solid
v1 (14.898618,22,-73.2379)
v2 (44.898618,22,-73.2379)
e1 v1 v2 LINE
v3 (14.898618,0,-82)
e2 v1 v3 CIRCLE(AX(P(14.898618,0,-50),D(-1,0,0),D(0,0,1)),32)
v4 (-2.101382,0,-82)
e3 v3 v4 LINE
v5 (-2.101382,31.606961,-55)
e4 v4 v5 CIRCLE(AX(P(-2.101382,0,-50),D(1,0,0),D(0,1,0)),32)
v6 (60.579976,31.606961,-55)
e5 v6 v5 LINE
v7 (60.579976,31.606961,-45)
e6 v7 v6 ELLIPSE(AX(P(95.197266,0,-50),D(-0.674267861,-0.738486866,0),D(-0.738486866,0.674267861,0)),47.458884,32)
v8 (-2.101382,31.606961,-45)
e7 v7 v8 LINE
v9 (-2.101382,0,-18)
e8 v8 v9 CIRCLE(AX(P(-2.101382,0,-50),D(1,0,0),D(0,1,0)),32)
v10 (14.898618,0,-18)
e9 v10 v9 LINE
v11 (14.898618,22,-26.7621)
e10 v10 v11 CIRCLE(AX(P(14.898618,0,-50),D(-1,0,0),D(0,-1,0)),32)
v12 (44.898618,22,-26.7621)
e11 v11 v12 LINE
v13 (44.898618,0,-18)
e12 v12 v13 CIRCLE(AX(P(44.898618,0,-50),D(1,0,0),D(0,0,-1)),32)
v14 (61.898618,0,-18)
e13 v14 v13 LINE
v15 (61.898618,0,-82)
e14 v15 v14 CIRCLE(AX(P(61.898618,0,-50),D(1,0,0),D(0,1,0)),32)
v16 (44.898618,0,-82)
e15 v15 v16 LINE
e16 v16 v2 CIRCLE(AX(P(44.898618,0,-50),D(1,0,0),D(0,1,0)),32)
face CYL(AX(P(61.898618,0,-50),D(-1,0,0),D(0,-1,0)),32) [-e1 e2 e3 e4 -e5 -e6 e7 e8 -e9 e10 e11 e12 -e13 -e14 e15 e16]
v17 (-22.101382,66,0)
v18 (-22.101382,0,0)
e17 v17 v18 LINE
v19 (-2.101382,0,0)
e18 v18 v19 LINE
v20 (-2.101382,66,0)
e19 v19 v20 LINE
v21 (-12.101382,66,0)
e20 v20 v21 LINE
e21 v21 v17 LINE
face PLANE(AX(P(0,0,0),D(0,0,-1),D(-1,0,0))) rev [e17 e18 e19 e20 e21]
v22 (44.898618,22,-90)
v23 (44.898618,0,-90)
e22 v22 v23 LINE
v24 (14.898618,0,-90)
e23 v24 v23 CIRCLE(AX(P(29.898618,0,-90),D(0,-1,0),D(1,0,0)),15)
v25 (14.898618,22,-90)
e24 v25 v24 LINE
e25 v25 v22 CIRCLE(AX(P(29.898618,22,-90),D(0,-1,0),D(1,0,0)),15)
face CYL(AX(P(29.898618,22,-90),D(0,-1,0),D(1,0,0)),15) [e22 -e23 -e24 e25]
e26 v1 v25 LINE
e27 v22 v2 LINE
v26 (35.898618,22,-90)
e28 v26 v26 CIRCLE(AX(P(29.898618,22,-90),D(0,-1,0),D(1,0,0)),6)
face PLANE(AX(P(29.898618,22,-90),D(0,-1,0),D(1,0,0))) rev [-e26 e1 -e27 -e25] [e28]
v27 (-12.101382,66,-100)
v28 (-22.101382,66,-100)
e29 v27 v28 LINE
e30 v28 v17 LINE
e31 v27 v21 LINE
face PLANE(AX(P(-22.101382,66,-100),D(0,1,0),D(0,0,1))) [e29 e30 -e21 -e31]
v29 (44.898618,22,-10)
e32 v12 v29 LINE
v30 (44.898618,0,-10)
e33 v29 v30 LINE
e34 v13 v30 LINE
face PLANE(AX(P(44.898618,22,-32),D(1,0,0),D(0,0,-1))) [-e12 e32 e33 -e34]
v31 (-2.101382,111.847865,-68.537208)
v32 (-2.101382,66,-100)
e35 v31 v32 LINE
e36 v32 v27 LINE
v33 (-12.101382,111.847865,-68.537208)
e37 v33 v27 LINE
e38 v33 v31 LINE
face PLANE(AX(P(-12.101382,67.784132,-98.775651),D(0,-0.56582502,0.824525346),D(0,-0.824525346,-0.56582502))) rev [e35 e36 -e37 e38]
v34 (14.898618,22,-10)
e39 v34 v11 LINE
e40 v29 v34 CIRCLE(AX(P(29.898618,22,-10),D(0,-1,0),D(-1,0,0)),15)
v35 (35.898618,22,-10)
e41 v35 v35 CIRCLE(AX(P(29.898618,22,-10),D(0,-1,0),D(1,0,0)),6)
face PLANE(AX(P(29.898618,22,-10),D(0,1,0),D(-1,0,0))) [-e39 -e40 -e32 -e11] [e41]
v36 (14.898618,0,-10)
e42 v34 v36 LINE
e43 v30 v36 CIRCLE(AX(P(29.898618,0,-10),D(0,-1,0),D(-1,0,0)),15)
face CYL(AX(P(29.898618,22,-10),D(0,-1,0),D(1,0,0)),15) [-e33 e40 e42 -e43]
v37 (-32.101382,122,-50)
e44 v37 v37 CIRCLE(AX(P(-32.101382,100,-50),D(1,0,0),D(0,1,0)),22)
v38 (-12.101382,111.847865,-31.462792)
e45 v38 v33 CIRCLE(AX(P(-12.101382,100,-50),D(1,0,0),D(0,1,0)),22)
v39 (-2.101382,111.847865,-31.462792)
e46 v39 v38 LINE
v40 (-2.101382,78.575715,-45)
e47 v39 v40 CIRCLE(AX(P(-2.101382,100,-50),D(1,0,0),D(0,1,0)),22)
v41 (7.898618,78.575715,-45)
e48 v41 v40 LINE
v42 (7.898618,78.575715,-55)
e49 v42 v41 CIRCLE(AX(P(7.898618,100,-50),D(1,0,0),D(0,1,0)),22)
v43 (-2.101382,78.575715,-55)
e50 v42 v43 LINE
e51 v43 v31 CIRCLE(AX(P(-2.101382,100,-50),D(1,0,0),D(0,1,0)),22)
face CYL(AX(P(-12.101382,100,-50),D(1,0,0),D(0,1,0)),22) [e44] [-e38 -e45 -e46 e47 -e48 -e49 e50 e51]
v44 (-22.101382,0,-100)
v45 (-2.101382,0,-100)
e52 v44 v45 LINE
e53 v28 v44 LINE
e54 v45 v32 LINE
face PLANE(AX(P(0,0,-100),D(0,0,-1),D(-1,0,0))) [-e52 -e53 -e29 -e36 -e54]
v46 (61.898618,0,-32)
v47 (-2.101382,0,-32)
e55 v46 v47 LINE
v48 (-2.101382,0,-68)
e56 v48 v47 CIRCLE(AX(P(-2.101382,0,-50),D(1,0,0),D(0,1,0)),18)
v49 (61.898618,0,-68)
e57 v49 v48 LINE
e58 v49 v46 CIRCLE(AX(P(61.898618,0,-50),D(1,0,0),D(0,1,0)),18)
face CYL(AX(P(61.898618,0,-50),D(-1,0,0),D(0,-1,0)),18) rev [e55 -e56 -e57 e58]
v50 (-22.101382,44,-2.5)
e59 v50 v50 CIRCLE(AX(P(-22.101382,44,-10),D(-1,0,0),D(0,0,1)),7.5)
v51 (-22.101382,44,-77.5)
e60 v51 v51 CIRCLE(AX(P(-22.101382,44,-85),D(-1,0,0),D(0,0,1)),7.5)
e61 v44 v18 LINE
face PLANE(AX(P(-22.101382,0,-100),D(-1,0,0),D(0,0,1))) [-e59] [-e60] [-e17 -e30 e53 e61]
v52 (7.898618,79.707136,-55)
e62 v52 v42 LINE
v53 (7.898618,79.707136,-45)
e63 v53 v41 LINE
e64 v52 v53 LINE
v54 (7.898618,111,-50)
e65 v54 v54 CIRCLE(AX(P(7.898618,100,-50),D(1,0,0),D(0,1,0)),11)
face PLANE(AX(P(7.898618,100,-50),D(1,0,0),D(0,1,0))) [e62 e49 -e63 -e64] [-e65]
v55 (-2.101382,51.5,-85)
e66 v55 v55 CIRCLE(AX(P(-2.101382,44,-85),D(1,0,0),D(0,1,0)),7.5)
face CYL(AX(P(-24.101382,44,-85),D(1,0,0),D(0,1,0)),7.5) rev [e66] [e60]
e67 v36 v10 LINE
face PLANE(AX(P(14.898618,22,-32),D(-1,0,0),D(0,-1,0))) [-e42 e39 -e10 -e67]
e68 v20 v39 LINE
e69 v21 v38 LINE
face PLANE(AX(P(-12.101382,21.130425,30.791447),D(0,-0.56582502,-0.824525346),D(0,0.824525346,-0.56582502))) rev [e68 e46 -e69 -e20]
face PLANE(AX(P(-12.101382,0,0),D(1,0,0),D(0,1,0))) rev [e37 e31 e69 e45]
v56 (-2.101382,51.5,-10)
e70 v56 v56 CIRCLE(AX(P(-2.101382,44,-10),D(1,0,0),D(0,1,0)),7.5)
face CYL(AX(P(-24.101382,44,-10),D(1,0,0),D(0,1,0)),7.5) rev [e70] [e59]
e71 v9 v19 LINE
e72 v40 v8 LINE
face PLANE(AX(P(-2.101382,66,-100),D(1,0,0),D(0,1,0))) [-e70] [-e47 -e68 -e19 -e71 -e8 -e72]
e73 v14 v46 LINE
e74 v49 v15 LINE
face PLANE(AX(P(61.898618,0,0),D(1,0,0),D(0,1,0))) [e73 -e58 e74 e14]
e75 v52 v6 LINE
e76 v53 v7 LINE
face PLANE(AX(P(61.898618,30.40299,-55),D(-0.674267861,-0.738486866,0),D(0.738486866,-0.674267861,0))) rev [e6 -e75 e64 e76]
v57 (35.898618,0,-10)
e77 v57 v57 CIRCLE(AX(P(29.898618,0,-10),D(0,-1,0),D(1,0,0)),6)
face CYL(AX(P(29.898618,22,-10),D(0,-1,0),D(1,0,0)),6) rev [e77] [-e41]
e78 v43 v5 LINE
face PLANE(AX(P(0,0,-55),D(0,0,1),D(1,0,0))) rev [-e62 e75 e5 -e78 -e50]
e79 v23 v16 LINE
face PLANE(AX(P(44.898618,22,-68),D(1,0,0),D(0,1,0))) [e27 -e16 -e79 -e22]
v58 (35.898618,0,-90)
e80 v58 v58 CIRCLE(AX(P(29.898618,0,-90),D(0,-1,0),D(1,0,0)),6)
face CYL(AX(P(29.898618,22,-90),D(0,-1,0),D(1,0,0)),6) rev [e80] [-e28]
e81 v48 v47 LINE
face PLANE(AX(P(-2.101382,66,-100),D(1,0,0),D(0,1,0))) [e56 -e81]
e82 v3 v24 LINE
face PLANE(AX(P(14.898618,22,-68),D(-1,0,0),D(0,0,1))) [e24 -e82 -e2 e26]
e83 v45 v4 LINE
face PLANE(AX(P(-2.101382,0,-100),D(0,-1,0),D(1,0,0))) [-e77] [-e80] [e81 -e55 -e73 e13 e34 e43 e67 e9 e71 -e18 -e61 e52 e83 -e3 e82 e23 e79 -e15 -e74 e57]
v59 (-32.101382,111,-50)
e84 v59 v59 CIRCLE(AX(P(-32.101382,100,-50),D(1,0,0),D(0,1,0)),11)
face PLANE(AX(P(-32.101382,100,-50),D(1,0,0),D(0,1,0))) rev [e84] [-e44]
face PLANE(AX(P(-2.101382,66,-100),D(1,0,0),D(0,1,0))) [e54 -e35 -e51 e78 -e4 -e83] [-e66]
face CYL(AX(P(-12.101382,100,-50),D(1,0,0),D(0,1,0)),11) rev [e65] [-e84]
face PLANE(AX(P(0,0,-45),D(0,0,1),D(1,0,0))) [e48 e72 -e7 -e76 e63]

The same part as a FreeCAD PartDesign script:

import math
import FreeCAD as App
import Part
import Sketcher

V = App.Vector

doc = App.newDocument("Part")
body = doc.addObject("PartDesign::Body", "Body")

sketch1 = doc.addObject("Sketcher::SketchObject", "Sketch")
body.addObject(sketch1)
sketch1.AttachmentSupport = (doc.XY_Plane, [""])
sketch1.MapMode = "FlatFace"
sketch1.addGeometry(Part.LineSegment(V(-22.101382, 66, 0), V(-22.101382, 0, 0)), False)
sketch1.addGeometry(Part.LineSegment(V(-22.101382, 0, 0), V(-2.101382, 0, 0)), False)
sketch1.addGeometry(Part.LineSegment(V(-2.101382, 0, 0), V(-2.101382, 66, 0)), False)
sketch1.addGeometry(Part.LineSegment(V(-2.101382, 66, 0), V(-22.101382, 66, 0)), False)
sketch1.addConstraint(Sketcher.Constraint("Coincident", 0, 2, 1, 1))
sketch1.addConstraint(Sketcher.Constraint("Coincident", 1, 2, 2, 1))
sketch1.addConstraint(Sketcher.Constraint("Coincident", 2, 2, 3, 1))
sketch1.addConstraint(Sketcher.Constraint("Coincident", 3, 2, 0, 1))
sketch1.addConstraint(Sketcher.Constraint("Vertical", 0))
sketch1.addConstraint(Sketcher.Constraint("Horizontal", 1))
sketch1.addConstraint(Sketcher.Constraint("Vertical", 2))
sketch1.addConstraint(Sketcher.Constraint("Horizontal", 3))
sketch1.addConstraint(Sketcher.Constraint("PointOnObject", 0, 2, -1))
sketch1.addConstraint(Sketcher.Constraint("DistanceX", 1, 1, 1, 2, 20.0))
sketch1.addConstraint(Sketcher.Constraint("DistanceY", 0, 2, 0, 1, 66.0))
sketch1.addConstraint(Sketcher.Constraint("DistanceX", 0, 2, -1, 1, 22.101382))
pad1 = doc.addObject("PartDesign::Pad", "Pad")
body.addObject(pad1)
pad1.Profile = sketch1
pad1.Length = 100
pad1.Reversed = True

sketch2 = doc.addObject("Sketcher::SketchObject", "Sketch001")
body.addObject(sketch2)
sketch2.AttachmentSupport = (doc.YZ_Plane, [""])
sketch2.MapMode = "FlatFace"
sketch2.AttachmentOffset = App.Placement(V(0, 0, -2.101382), App.Rotation())
sketch2.addGeometry(Part.LineSegment(V(111.847865, -31.462792, 0), V(66, 0, 0)), False)
sketch2.addGeometry(Part.LineSegment(V(66, 0, 0), V(66, -100, 0)), False)
sketch2.addGeometry(Part.LineSegment(V(66, -100, 0), V(111.847865, -68.537208, 0)), False)
sketch2.addGeometry(Part.LineSegment(V(111.847865, -68.537208, 0), V(113.035101, -67.722475, 0)), False)
sketch2.addGeometry(Part.ArcOfCircle(Part.Circle(V(100, -50, 0), V(0, 0, 1), 22), math.radians(-53.665055), math.radians(53.665055)), False)
sketch2.addGeometry(Part.LineSegment(V(113.035101, -32.277525, 0), V(111.847865, -31.462792, 0)), False)
sketch2.addGeometry(Part.Circle(V(100, -50, 0), V(0, 0, 1), 11), False)
sketch2.addConstraint(Sketcher.Constraint("Coincident", 0, 2, 1, 1))
sketch2.addConstraint(Sketcher.Constraint("Coincident", 1, 2, 2, 1))
sketch2.addConstraint(Sketcher.Constraint("Coincident", 2, 2, 3, 1))
sketch2.addConstraint(Sketcher.Constraint("Coincident", 3, 2, 4, 1))
sketch2.addConstraint(Sketcher.Constraint("Coincident", 4, 2, 5, 1))
sketch2.addConstraint(Sketcher.Constraint("Coincident", 5, 2, 0, 1))
sketch2.addConstraint(Sketcher.Constraint("Vertical", 1))
sketch2.addConstraint(Sketcher.Constraint("Coincident", 6, 3, 4, 3))
sketch2.addConstraint(Sketcher.Constraint("PointOnObject", 0, 2, -1))
sketch2.addConstraint(Sketcher.Constraint("Parallel", 2, 3))
sketch2.addConstraint(Sketcher.Constraint("Parallel", 0, 5))
sketch2.addConstraint(Sketcher.Constraint("Vertical", 3, 2, 4, 2))
sketch2.addConstraint(Sketcher.Constraint("Vertical", 2, 2, 5, 2))
sketch2.addConstraint(Sketcher.Constraint("Equal", 0, 2))
sketch2.addConstraint(Sketcher.Constraint("Diameter", 6, 22.0))
sketch2.addConstraint(Sketcher.Constraint("Radius", 4, 22.0))
sketch2.addConstraint(Sketcher.Constraint("DistanceY", 1, 2, 1, 1, 100.0))
sketch2.addConstraint(Sketcher.Constraint("DistanceX", -1, 1, 4, 3, 100.0))
sketch2.addConstraint(Sketcher.Constraint("DistanceX", -1, 1, 0, 2, 66.0))
sketch2.addConstraint(Sketcher.Constraint("DistanceX", -1, 1, 3, 2, 113.035101))
sketch2.addConstraint(Sketcher.Constraint("Distance", 0, 55.605161))
pad2 = doc.addObject("PartDesign::Pad", "Pad001")
body.addObject(pad2)
pad2.Profile = sketch2
pad2.Length = 10
pad2.Reversed = True

sketch3 = doc.addObject("Sketcher::SketchObject", "Sketch002")
body.addObject(sketch3)
sketch3.AttachmentSupport = (doc.YZ_Plane, [""])
sketch3.MapMode = "FlatFace"
sketch3.AttachmentOffset = App.Placement(V(0, 0, 7.898618), App.Rotation())
sketch3.addGeometry(Part.Circle(V(100, -50, 0), V(0, 0, 1), 22), False)
sketch3.addGeometry(Part.Circle(V(100, -50, 0), V(0, 0, 1), 11), False)
sketch3.addConstraint(Sketcher.Constraint("Coincident", 1, 3, 0, 3))
sketch3.addConstraint(Sketcher.Constraint("Diameter", 0, 44.0))
sketch3.addConstraint(Sketcher.Constraint("Diameter", 1, 22.0))
sketch3.addConstraint(Sketcher.Constraint("DistanceX", -1, 1, 0, 3, 100.0))
sketch3.addConstraint(Sketcher.Constraint("DistanceY", 0, 3, -1, 1, 50.0))
pad3 = doc.addObject("PartDesign::Pad", "Pad002")
body.addObject(pad3)
pad3.Profile = sketch3
pad3.Length = 10
pad3.Reversed = True

sketch4 = doc.addObject("Sketcher::SketchObject", "Sketch003")
body.addObject(sketch4)
sketch4.AttachmentSupport = (doc.YZ_Plane, [""])
sketch4.MapMode = "FlatFace"
sketch4.AttachmentOffset = App.Placement(V(0, 0, 7.898618), App.Rotation())
sketch4.addGeometry(Part.Circle(V(100, -50, 0), V(0, 0, 1), 22), False)
sketch4.addGeometry(Part.Circle(V(100, -50, 0), V(0, 0, 1), 11), False)
sketch4.addConstraint(Sketcher.Constraint("Coincident", 1, 3, 0, 3))
sketch4.addConstraint(Sketcher.Constraint("Diameter", 0, 44.0))
sketch4.addConstraint(Sketcher.Constraint("Diameter", 1, 22.0))
sketch4.addConstraint(Sketcher.Constraint("DistanceX", -1, 1, 0, 3, 100.0))
sketch4.addConstraint(Sketcher.Constraint("DistanceY", 0, 3, -1, 1, 50.0))
pad4 = doc.addObject("PartDesign::Pad", "Pad003")
body.addObject(pad4)
pad4.Profile = sketch4
pad4.Length = 40
pad4.Reversed = True

sketch5 = doc.addObject("Sketcher::SketchObject", "Sketch004")
body.addObject(sketch5)
sketch5.AttachmentSupport = (doc.YZ_Plane, [""])
sketch5.MapMode = "FlatFace"
sketch5.AttachmentOffset = App.Placement(V(0, 0, -2.101382), App.Rotation())
sketch5.addGeometry(Part.ArcOfCircle(Part.Circle(V(0, -50, 0), V(0, 0, 1), 18), math.radians(-90), math.radians(90)), False)
sketch5.addGeometry(Part.LineSegment(V(0, -68, 0), V(0, -82, 0)), False)
sketch5.addGeometry(Part.ArcOfCircle(Part.Circle(V(0, -50, 0), V(0, 0, 1), 32), math.radians(-90), math.radians(90)), False)
sketch5.addGeometry(Part.LineSegment(V(0, -18, 0), V(0, -32, 0)), False)
sketch5.addConstraint(Sketcher.Constraint("Coincident", 0, 1, 1, 1))
sketch5.addConstraint(Sketcher.Constraint("Coincident", 1, 2, 2, 1))
sketch5.addConstraint(Sketcher.Constraint("Coincident", 2, 2, 3, 1))
sketch5.addConstraint(Sketcher.Constraint("Coincident", 3, 2, 0, 2))
sketch5.addConstraint(Sketcher.Constraint("Vertical", 1))
sketch5.addConstraint(Sketcher.Constraint("Vertical", 3))
sketch5.addConstraint(Sketcher.Constraint("Coincident", 2, 3, 0, 3))
sketch5.addConstraint(Sketcher.Constraint("PointOnObject", 0, 3, -2))
sketch5.addConstraint(Sketcher.Constraint("PointOnObject", 0, 1, -2))
sketch5.addConstraint(Sketcher.Constraint("PointOnObject", 2, 2, -2))
sketch5.addConstraint(Sketcher.Constraint("Radius", 0, 18.0))
sketch5.addConstraint(Sketcher.Constraint("Radius", 2, 32.0))
sketch5.addConstraint(Sketcher.Constraint("DistanceY", 0, 3, -1, 1, 50.0))
pad5 = doc.addObject("PartDesign::Pad", "Pad004")
body.addObject(pad5)
pad5.Profile = sketch5
pad5.Length = 64

sketch6 = doc.addObject("Sketcher::SketchObject", "Sketch005")
body.addObject(sketch6)
sketch6.AttachmentSupport = (doc.XY_Plane, [""])
sketch6.MapMode = "FlatFace"
sketch6.AttachmentOffset = App.Placement(V(0, 0, -50), App.Rotation())
sketch6.addGeometry(Part.LineSegment(V(61.898618, 30.40299, 0), V(-4.356494, 30.40299, 0)), False)
sketch6.addGeometry(Part.LineSegment(V(-4.356494, 30.40299, 0), V(-4.356494, 79.707136, 0)), False)
sketch6.addGeometry(Part.LineSegment(V(-4.356494, 79.707136, 0), V(7.898618, 79.707136, 0)), False)
sketch6.addGeometry(Part.LineSegment(V(7.898618, 79.707136, 0), V(61.898618, 30.40299, 0)), False)
sketch6.addConstraint(Sketcher.Constraint("Coincident", 0, 2, 1, 1))
sketch6.addConstraint(Sketcher.Constraint("Coincident", 1, 2, 2, 1))
sketch6.addConstraint(Sketcher.Constraint("Coincident", 2, 2, 3, 1))
sketch6.addConstraint(Sketcher.Constraint("Coincident", 3, 2, 0, 1))
sketch6.addConstraint(Sketcher.Constraint("Horizontal", 0))
sketch6.addConstraint(Sketcher.Constraint("Vertical", 1))
sketch6.addConstraint(Sketcher.Constraint("Horizontal", 2))
sketch6.addConstraint(Sketcher.Constraint("DistanceX", 2, 2, 3, 2, 54.0))
sketch6.addConstraint(Sketcher.Constraint("DistanceX", 0, 2, 0, 1, 66.255112))
sketch6.addConstraint(Sketcher.Constraint("DistanceY", 1, 1, 1, 2, 49.304146))
sketch6.addConstraint(Sketcher.Constraint("DistanceY", -1, 1, 0, 2, 30.40299))
sketch6.addConstraint(Sketcher.Constraint("DistanceX", 0, 2, -1, 1, 4.356494))
pad6 = doc.addObject("PartDesign::Pad", "Pad005")
body.addObject(pad6)
pad6.Profile = sketch6
pad6.Length = 10
pad6.Midplane = True

sketch7 = doc.addObject("Sketcher::SketchObject", "Sketch006")
body.addObject(sketch7)
sketch7.AttachmentSupport = (doc.XZ_Plane, [""])
sketch7.MapMode = "FlatFace"
sketch7.addGeometry(Part.LineSegment(V(14.898618, -10, 0), V(14.898618, -32, 0)), False)
sketch7.addGeometry(Part.LineSegment(V(14.898618, -32, 0), V(44.898618, -32, 0)), False)
sketch7.addGeometry(Part.LineSegment(V(44.898618, -32, 0), V(44.898618, -10, 0)), False)
sketch7.addGeometry(Part.ArcOfCircle(Part.Circle(V(29.898618, -10, 0), V(0, 0, 1), 15), math.radians(0), math.radians(180)), False)
sketch7.addGeometry(Part.Circle(V(29.898618, -10, 0), V(0, 0, 1), 6), False)
sketch7.addGeometry(Part.LineSegment(V(14.898618, -68, 0), V(14.898618, -90, 0)), False)
sketch7.addGeometry(Part.ArcOfCircle(Part.Circle(V(29.898618, -90, 0), V(0, 0, 1), 15), math.radians(180), math.radians(360)), False)
sketch7.addGeometry(Part.LineSegment(V(44.898618, -90, 0), V(44.898618, -68, 0)), False)
sketch7.addGeometry(Part.LineSegment(V(44.898618, -68, 0), V(14.898618, -68, 0)), False)
sketch7.addGeometry(Part.Circle(V(29.898618, -90, 0), V(0, 0, 1), 6), False)
sketch7.addConstraint(Sketcher.Constraint("Coincident", 0, 2, 1, 1))
sketch7.addConstraint(Sketcher.Constraint("Coincident", 1, 2, 2, 1))
sketch7.addConstraint(Sketcher.Constraint("Tangent", 2, 2, 3, 1))
sketch7.addConstraint(Sketcher.Constraint("Tangent", 3, 2, 0, 1))
sketch7.addConstraint(Sketcher.Constraint("Tangent", 5, 2, 6, 1))
sketch7.addConstraint(Sketcher.Constraint("Tangent", 6, 2, 7, 1))
sketch7.addConstraint(Sketcher.Constraint("Coincident", 7, 2, 8, 1))
sketch7.addConstraint(Sketcher.Constraint("Coincident", 8, 2, 5, 1))
sketch7.addConstraint(Sketcher.Constraint("Vertical", 0))
sketch7.addConstraint(Sketcher.Constraint("Horizontal", 1))
sketch7.addConstraint(Sketcher.Constraint("Vertical", 2))
sketch7.addConstraint(Sketcher.Constraint("Vertical", 5))
sketch7.addConstraint(Sketcher.Constraint("Vertical", 7))
sketch7.addConstraint(Sketcher.Constraint("Horizontal", 8))
sketch7.addConstraint(Sketcher.Constraint("Coincident", 4, 3, 3, 3))
sketch7.addConstraint(Sketcher.Constraint("Coincident", 9, 3, 6, 3))
sketch7.addConstraint(Sketcher.Constraint("Equal", 3, 6))
sketch7.addConstraint(Sketcher.Constraint("Equal", 4, 9))
sketch7.addConstraint(Sketcher.Constraint("Vertical", 4, 3, 6, 3))
sketch7.addConstraint(Sketcher.Constraint("Equal", 2, 5))
sketch7.addConstraint(Sketcher.Constraint("Diameter", 4, 12.0))
sketch7.addConstraint(Sketcher.Constraint("Radius", 3, 15.0))
sketch7.addConstraint(Sketcher.Constraint("DistanceY", 0, 2, 0, 1, 22.0))
sketch7.addConstraint(Sketcher.Constraint("DistanceY", 3, 3, -1, 1, 10.0))
sketch7.addConstraint(Sketcher.Constraint("DistanceY", 6, 3, -1, 1, 90.0))
sketch7.addConstraint(Sketcher.Constraint("DistanceX", -1, 1, 3, 3, 29.898618))
pad7 = doc.addObject("PartDesign::Pad", "Pad006")
body.addObject(pad7)
pad7.Profile = sketch7
pad7.Length = 22
pad7.Reversed = True

sketch8 = doc.addObject("Sketcher::SketchObject", "Sketch007")
body.addObject(sketch8)
sketch8.AttachmentSupport = (doc.YZ_Plane, [""])
sketch8.MapMode = "FlatFace"
sketch8.AttachmentOffset = App.Placement(V(0, 0, -2.101382), App.Rotation())
sketch8.addGeometry(Part.Circle(V(44, -10, 0), V(0, 0, 1), 7.5), False)
sketch8.addGeometry(Part.Circle(V(44, -85, 0), V(0, 0, 1), 7.5), False)
sketch8.addConstraint(Sketcher.Constraint("Equal", 0, 1))
sketch8.addConstraint(Sketcher.Constraint("Vertical", 0, 3, 1, 3))
sketch8.addConstraint(Sketcher.Constraint("Diameter", 0, 15.0))
sketch8.addConstraint(Sketcher.Constraint("DistanceX", -1, 1, 0, 3, 44.0))
sketch8.addConstraint(Sketcher.Constraint("DistanceY", 0, 3, -1, 1, 10.0))
sketch8.addConstraint(Sketcher.Constraint("DistanceY", 1, 3, -1, 1, 85.0))
pocket1 = doc.addObject("PartDesign::Pocket", "Pocket")
body.addObject(pocket1)
pocket1.Profile = sketch8
pocket1.Length = 22

doc.recompute()
